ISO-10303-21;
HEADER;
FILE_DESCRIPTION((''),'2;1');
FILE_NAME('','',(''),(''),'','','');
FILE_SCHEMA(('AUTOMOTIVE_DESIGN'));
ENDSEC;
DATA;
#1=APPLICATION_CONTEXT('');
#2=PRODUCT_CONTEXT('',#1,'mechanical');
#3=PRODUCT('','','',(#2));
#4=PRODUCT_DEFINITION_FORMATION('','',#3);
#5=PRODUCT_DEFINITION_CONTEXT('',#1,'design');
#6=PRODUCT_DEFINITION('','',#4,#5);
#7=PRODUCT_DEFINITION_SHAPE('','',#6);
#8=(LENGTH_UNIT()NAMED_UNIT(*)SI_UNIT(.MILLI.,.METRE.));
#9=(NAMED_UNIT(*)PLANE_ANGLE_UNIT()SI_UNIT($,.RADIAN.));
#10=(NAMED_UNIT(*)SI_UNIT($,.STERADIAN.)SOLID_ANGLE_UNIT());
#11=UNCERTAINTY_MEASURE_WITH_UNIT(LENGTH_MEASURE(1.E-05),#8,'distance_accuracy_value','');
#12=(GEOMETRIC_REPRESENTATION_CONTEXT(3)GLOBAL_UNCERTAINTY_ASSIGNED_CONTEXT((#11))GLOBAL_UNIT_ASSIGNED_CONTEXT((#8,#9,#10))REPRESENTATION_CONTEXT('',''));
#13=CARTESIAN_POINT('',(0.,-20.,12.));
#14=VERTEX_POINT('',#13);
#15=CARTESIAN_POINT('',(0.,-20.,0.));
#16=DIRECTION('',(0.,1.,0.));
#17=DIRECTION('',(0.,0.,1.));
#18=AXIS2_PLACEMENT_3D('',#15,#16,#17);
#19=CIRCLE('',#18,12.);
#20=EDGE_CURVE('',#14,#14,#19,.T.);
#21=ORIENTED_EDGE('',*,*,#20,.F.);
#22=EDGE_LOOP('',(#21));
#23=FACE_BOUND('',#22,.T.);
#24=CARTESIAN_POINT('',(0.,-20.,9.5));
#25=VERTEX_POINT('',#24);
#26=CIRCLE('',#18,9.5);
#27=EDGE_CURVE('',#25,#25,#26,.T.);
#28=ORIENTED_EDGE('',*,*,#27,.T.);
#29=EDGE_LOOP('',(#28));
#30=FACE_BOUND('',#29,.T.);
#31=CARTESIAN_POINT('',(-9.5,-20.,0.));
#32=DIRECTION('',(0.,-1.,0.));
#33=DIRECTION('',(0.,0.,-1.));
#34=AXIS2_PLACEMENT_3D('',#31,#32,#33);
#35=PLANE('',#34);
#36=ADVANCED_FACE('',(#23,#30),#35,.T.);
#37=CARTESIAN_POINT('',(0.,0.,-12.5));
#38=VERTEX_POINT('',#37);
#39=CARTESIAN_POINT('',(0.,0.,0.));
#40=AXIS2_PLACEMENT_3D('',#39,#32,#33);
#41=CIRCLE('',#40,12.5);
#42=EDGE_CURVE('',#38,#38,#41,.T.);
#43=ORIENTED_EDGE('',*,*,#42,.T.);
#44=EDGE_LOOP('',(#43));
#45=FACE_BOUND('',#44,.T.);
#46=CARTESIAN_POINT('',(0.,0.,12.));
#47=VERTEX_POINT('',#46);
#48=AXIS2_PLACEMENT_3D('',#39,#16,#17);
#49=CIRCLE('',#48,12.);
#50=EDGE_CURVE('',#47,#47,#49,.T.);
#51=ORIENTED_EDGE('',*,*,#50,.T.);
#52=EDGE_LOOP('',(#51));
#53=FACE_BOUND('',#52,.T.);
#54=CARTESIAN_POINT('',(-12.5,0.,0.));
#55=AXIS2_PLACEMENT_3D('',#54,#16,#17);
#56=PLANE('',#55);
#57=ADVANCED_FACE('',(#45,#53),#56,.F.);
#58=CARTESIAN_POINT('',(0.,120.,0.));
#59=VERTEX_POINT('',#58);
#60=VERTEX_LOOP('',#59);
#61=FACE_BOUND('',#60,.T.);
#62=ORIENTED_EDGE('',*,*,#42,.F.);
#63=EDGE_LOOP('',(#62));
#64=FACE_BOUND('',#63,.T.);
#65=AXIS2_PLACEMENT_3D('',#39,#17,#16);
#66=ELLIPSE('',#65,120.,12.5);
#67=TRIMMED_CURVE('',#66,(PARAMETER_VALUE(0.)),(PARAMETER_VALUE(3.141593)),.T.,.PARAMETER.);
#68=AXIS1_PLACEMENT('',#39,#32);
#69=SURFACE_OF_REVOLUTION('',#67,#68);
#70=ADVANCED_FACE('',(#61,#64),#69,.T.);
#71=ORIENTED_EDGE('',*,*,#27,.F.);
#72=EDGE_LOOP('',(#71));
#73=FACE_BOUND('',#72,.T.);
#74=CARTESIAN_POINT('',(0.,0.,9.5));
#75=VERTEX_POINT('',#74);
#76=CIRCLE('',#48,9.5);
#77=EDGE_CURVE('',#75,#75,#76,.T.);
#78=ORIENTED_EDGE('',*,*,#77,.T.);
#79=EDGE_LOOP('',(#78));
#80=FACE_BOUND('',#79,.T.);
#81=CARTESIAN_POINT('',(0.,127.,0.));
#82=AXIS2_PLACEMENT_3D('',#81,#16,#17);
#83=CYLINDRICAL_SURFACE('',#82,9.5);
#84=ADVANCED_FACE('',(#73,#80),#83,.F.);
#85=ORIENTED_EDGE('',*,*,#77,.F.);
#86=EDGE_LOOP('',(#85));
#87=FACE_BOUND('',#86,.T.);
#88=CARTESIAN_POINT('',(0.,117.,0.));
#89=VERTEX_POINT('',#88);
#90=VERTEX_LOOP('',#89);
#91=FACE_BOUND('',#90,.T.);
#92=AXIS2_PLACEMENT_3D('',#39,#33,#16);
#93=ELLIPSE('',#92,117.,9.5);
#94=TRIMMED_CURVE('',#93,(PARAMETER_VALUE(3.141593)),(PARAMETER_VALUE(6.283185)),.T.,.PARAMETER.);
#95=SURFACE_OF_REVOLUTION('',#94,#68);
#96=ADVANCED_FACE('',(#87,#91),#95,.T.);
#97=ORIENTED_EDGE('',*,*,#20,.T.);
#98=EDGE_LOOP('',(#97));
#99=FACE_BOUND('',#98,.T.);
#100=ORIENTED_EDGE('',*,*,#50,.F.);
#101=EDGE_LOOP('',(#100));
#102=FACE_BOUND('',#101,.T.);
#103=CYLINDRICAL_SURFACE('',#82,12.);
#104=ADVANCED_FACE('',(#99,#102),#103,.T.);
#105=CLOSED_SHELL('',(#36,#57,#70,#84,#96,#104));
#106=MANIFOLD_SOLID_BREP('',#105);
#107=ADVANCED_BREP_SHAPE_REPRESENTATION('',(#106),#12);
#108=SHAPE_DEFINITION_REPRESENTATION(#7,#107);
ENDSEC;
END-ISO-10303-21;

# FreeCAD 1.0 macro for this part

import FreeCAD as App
import Part
import Sketcher

V = App.Vector

doc = App.newDocument("Part")
body = doc.addObject("PartDesign::Body", "Body")

sketch1 = body.newObject("Sketcher::SketchObject", "Sketch")
sketch1.AttachmentSupport = (doc.getObject("XY_Plane"), [""])
sketch1.MapMode = "FlatFace"
sketch1.addGeometry(Part.LineSegment(V(-12.5, 0, 0), V(-9.5, 0, 0)), False)
sketch1.addGeometry(Part.BSplineCurve([V(0, 117, 0), V(-9.5, 117, 0), V(-9.5, 0, 0)], [3, 3], [0, 1.570796327], False, 2, [1, 0.707106781, 1], False), False)
sketch1.addGeometry(Part.LineSegment(V(0, 117, 0), V(0, 120, 0)), False)
sketch1.addGeometry(Part.BSplineCurve([V(0, 120, 0), V(-12.5, 120, 0), V(-12.5, 0, 0)], [3, 3], [0, 1.570796327], False, 2, [1, 0.707106781, 1], False), False)
sketch1.addConstraint(Sketcher.Constraint("Block", 1))
sketch1.addConstraint(Sketcher.Constraint("Block", 3))
sketch1.addConstraint(Sketcher.Constraint("Coincident", 0, 2, 1, 2))
sketch1.addConstraint(Sketcher.Constraint("Coincident", 1, 1, 2, 1))
sketch1.addConstraint(Sketcher.Constraint("Coincident", 2, 2, 3, 1))
sketch1.addConstraint(Sketcher.Constraint("Coincident", 3, 2, 0, 1))
revolution = body.newObject("PartDesign::Revolution", "Revolution")
revolution.Profile = sketch1
revolution.ReferenceAxis = (sketch1, ["V_Axis"])
revolution.Angle = 360

sketch2 = body.newObject("Sketcher::SketchObject", "Sketch001")
sketch2.AttachmentSupport = (doc.getObject("XY_Plane"), [""])
sketch2.MapMode = "FlatFace"
sketch2.addGeometry(Part.LineSegment(V(-12, 0, 0), V(-12, -20, 0)), False)
sketch2.addGeometry(Part.LineSegment(V(-12, -20, 0), V(-9.5, -20, 0)), False)
sketch2.addGeometry(Part.LineSegment(V(-9.5, -20, 0), V(-9.5, 0, 0)), False)
sketch2.addGeometry(Part.LineSegment(V(-9.5, 0, 0), V(-12, 0, 0)), False)
sketch2.addConstraint(Sketcher.Constraint("Coincident", 0, 2, 1, 1))
sketch2.addConstraint(Sketcher.Constraint("Coincident", 1, 2, 2, 1))
sketch2.addConstraint(Sketcher.Constraint("Coincident", 2, 2, 3, 1))
sketch2.addConstraint(Sketcher.Constraint("Coincident", 3, 2, 0, 1))
sketch2.addConstraint(Sketcher.Constraint("Vertical", 0))
sketch2.addConstraint(Sketcher.Constraint("Horizontal", 1))
sketch2.addConstraint(Sketcher.Constraint("Vertical", 2))
sketch2.addConstraint(Sketcher.Constraint("Horizontal", 3))
sketch2.addConstraint(Sketcher.Constraint("PointOnObject", 2, 2, -1))
sketch2.addConstraint(Sketcher.Constraint("DistanceY", 0, 2, 0, 1, 20.0))
sketch2.addConstraint(Sketcher.Constraint("DistanceX", 1, 1, 1, 2, 2.5))
sketch2.addConstraint(Sketcher.Constraint("DistanceX", 0, 2, -1, 1, 12.0))
revolution2 = body.newObject("PartDesign::Revolution", "Revolution001")
revolution2.Profile = sketch2
revolution2.ReferenceAxis = (sketch2, ["V_Axis"])
revolution2.Angle = 360

doc.recompute()
